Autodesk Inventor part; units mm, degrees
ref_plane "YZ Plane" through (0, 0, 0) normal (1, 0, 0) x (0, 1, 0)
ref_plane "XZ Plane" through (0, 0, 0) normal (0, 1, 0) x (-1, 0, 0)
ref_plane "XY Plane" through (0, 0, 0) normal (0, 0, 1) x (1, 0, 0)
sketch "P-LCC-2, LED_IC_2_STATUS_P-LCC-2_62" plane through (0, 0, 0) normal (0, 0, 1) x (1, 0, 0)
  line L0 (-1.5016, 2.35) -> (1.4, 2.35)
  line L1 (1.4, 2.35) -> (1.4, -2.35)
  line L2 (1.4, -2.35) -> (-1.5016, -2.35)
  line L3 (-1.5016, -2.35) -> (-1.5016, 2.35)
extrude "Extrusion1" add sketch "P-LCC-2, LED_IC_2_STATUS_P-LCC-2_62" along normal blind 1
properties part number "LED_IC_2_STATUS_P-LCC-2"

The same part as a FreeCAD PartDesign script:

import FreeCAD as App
import Part
import Sketcher
from FreeCAD import Vector
Q = App.Units.Quantity


def add_polygon(sketch, points):
    """Adds a closed chain of lines whose ends are joined by coincident constraints."""
    first, n = sketch.GeometryCount, len(points)
    for a, b in zip(points, points[1:] + points[:1]):
        sketch.addGeometry(Part.LineSegment(App.Vector(*a, 0), App.Vector(*b, 0)), False)
    for i in range(n):
        sketch.addConstraint(Sketcher.Constraint("Coincident", first + i, 2, first + (i + 1) % n, 1))

doc = App.newDocument("Part")
params = doc.addObject("Spreadsheet::Sheet", "Params")
for row, (alias, value) in enumerate([
    ("sketch1_height", "4.7 mm"),
    ("pad1_length", "1 mm"),
], start=1):
    params.set(f"A{row}", alias)
    params.set(f"B{row}", "=" + value)
    params.setAlias(f"B{row}", alias)

body = doc.addObject("PartDesign::Body", "Body")

# Sketch on XY plane
sketch1 = doc.addObject("Sketcher::SketchObject", "Sketch")
body.addObject(sketch1)
sketch1.AttachmentSupport = (doc.XY_Plane, [""])
sketch1.MapMode = "FlatFace"
add_polygon(sketch1, [(1.4, 2.4), (-1.5, 2.4), (-1.5, -2.4), (1.4, -2.4)])  # lines 0-3
sketch1.addConstraint(Sketcher.Constraint("Horizontal", 0))
sketch1.addConstraint(Sketcher.Constraint("Vertical", 1))
sketch1.addConstraint(Sketcher.Constraint("Horizontal", 2))
sketch1.addConstraint(Sketcher.Constraint("Vertical", 3))
sketch1.addConstraint(Sketcher.Constraint("DistanceY", 1, 2, 1, 1, Q("4.7 mm")))
sketch1.addConstraint(Sketcher.Constraint("DistanceX", -1, 1, 2, 2, Q("1.4 mm")))
sketch1.addConstraint(Sketcher.Constraint("DistanceY", -1, 1, 0, 2, Q("2.35 mm")))
sketch1.addConstraint(Sketcher.Constraint("DistanceX", 0, 2, 0, 1, Q("2.9016 mm")))
sketch1.setExpression("Constraints[8]", "Params.sketch1_height")
pad1 = doc.addObject("PartDesign::Pad", "Pad")
body.addObject(pad1)
pad1.Profile = sketch1
pad1.setExpression("Length", "Params.pad1_length")

doc.recompute()
